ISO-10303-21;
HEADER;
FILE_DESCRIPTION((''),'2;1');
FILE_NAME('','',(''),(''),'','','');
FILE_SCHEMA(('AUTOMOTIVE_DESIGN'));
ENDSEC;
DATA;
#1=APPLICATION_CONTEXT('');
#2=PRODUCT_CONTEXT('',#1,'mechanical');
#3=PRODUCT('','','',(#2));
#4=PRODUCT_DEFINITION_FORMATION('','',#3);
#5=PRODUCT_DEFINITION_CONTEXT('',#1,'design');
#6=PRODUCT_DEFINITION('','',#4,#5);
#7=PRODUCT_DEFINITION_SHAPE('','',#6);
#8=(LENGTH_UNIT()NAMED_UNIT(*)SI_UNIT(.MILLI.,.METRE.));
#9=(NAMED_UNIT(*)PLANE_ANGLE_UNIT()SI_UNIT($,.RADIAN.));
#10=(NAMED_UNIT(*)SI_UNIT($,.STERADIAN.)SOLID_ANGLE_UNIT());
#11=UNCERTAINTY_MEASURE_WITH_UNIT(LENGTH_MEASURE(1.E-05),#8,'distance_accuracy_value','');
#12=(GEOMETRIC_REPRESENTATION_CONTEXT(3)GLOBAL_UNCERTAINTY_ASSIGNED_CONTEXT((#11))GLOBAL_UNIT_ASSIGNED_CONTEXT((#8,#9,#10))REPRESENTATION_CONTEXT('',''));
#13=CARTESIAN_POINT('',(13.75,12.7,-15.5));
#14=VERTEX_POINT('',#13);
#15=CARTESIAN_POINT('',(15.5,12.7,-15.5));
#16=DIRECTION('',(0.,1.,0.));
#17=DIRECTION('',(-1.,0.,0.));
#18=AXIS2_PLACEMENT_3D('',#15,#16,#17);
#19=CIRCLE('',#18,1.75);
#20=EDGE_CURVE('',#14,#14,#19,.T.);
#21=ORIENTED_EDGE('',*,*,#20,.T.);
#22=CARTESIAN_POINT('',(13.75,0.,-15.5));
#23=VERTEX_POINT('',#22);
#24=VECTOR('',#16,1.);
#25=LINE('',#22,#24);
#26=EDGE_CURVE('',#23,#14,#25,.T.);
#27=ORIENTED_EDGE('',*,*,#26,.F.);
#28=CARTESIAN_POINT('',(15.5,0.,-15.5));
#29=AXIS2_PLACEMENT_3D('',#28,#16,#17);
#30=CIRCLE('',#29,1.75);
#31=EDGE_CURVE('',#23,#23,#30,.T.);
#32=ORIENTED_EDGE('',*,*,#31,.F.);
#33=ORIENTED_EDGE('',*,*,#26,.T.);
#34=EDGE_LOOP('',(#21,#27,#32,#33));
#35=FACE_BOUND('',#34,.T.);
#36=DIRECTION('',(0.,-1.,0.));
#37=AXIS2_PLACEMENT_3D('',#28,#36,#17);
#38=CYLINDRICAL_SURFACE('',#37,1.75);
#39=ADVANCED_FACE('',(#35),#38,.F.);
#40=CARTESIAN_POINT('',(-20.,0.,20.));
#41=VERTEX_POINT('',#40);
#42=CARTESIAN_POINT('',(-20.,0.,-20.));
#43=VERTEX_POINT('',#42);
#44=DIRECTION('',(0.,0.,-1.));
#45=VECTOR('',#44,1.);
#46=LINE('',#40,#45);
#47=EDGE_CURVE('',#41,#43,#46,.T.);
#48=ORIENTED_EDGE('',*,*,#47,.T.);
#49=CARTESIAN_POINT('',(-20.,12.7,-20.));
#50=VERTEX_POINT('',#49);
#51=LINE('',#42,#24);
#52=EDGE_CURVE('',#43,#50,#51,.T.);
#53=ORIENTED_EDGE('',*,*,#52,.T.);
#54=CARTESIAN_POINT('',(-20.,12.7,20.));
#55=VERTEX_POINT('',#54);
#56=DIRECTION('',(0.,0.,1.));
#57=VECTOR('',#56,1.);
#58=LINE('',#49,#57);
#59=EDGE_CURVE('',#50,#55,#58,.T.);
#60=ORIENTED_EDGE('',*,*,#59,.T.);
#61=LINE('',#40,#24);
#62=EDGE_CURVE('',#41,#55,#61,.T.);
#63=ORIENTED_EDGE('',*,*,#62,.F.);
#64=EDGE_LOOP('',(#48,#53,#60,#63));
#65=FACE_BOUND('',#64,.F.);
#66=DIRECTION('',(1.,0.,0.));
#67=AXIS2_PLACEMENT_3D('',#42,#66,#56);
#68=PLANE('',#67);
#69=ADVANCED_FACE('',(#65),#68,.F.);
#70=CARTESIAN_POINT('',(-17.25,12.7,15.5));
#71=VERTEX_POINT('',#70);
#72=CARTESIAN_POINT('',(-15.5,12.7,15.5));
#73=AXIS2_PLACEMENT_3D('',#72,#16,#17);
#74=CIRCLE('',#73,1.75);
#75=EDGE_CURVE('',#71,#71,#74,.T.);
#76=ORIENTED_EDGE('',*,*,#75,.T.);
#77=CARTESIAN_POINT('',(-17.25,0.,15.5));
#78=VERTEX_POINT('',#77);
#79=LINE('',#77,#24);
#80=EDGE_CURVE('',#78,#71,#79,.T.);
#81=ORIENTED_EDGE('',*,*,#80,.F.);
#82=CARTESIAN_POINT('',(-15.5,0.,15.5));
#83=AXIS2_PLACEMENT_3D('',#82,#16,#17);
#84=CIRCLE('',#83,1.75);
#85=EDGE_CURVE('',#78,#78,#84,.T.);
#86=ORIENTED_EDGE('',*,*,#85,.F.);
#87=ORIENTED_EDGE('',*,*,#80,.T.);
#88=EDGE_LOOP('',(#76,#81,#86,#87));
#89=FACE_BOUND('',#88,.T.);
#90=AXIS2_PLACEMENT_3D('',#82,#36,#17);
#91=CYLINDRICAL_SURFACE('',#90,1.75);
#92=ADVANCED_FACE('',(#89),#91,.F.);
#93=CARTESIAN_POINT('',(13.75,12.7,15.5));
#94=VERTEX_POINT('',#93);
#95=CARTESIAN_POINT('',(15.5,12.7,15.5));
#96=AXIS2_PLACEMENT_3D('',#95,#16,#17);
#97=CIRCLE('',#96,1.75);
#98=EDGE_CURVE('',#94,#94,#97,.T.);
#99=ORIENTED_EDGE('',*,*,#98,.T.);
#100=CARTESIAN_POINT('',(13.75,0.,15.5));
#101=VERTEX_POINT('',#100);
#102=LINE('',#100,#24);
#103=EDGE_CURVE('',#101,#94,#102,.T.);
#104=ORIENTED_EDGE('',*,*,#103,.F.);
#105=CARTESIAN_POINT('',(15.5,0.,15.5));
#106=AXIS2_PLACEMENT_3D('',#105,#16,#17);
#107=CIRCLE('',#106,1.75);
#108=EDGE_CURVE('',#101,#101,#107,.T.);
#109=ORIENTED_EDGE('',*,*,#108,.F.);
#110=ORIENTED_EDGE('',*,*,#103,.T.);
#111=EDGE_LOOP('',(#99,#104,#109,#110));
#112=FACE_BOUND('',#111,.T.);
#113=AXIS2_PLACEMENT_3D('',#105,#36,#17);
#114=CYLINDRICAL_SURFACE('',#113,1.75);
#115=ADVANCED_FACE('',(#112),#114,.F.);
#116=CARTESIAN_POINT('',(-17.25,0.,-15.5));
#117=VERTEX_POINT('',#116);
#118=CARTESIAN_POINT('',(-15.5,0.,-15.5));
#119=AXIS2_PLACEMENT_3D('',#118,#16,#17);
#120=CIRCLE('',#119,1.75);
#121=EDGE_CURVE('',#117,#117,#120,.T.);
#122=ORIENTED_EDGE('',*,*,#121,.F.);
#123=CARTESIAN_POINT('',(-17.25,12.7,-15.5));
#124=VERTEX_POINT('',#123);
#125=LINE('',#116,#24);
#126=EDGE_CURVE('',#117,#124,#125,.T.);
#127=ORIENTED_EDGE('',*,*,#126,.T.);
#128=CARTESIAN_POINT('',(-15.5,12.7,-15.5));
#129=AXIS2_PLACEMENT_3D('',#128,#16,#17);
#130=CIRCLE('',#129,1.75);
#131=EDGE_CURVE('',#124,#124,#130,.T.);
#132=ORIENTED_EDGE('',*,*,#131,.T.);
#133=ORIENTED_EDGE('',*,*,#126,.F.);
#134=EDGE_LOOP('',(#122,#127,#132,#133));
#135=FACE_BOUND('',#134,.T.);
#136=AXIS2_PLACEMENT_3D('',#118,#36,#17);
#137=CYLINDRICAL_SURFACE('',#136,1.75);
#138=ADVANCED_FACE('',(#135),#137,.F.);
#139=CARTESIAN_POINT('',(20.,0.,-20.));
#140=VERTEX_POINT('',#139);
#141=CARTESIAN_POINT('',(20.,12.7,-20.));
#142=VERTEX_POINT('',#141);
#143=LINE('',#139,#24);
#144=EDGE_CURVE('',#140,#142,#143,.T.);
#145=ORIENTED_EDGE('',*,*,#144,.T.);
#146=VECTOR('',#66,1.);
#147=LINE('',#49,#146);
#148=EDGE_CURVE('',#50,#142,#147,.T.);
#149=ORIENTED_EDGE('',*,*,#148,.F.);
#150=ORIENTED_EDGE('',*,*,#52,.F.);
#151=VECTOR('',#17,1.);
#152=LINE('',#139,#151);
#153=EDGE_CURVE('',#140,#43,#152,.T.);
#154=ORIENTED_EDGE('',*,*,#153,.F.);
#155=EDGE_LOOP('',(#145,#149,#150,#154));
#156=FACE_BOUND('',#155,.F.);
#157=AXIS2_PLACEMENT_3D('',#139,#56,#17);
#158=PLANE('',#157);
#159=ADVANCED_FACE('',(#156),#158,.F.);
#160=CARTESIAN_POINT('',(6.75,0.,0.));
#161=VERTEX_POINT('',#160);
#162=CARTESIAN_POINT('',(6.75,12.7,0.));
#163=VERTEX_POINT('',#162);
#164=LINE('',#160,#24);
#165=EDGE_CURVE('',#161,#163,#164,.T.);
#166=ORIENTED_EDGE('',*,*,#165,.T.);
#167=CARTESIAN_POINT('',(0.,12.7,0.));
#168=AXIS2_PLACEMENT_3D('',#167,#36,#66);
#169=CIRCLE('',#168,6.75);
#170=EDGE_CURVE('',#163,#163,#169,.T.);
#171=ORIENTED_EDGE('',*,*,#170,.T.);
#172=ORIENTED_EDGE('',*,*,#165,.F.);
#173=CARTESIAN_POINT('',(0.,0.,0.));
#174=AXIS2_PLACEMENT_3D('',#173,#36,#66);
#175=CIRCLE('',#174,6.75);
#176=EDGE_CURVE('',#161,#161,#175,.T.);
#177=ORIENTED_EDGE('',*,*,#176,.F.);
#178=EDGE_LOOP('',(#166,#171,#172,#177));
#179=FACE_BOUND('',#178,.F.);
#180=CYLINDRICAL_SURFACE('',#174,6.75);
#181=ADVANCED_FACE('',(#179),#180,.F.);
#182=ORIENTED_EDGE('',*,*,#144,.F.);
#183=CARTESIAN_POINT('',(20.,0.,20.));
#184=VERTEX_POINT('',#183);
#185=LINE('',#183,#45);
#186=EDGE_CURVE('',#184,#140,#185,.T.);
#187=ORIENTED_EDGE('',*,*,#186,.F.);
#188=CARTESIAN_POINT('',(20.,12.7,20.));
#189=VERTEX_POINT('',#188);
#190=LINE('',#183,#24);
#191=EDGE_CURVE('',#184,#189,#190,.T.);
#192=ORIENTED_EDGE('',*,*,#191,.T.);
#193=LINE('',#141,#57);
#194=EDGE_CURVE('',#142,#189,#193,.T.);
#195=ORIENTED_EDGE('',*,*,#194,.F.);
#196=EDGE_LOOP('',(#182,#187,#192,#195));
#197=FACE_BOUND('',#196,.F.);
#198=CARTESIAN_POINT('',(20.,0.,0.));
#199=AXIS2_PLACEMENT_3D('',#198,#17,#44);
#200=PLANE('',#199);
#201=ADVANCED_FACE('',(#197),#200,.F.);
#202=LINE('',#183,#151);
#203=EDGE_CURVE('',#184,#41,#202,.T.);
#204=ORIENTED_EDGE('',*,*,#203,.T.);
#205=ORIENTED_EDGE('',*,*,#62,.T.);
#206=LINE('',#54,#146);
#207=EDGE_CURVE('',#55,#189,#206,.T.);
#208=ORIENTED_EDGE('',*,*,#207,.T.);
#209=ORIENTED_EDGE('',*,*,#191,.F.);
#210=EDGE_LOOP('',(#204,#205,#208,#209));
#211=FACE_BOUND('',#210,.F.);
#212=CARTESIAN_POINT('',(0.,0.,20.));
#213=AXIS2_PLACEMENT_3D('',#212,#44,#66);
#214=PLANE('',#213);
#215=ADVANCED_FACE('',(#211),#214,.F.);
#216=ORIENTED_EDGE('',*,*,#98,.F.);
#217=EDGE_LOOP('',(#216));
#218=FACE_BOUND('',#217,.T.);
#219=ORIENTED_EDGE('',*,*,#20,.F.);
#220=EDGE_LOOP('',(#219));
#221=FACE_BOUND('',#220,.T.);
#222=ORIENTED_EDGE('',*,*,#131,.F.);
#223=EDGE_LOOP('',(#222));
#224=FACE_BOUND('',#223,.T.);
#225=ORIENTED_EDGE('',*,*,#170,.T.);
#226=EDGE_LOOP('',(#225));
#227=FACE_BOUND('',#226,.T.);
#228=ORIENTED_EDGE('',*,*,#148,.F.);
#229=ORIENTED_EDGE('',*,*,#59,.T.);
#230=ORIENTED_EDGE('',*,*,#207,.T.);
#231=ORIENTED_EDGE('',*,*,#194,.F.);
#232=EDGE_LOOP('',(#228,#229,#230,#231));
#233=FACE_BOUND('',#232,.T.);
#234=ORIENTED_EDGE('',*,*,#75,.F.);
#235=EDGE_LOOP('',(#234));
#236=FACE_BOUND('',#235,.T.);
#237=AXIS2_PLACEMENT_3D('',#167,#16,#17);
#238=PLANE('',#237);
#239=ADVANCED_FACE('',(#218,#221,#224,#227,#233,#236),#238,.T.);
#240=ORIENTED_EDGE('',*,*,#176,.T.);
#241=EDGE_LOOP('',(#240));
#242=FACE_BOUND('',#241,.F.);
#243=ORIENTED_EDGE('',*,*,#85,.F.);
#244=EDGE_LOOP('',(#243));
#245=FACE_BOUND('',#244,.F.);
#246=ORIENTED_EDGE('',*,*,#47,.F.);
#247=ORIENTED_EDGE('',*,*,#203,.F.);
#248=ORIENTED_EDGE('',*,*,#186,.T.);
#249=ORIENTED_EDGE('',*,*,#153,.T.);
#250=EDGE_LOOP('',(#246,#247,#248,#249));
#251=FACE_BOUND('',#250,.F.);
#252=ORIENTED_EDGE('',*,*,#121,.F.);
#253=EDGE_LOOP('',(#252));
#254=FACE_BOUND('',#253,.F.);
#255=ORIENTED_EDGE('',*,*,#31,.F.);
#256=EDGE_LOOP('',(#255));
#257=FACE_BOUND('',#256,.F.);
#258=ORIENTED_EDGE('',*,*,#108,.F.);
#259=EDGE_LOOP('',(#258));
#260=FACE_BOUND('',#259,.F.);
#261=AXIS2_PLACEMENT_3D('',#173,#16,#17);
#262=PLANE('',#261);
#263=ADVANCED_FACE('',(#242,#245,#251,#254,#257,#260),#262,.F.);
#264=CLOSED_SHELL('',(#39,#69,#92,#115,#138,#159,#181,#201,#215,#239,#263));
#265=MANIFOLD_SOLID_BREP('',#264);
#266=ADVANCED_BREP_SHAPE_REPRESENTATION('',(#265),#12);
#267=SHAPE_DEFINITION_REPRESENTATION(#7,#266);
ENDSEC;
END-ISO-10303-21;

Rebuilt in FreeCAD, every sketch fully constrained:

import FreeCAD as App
import Part
import Sketcher
from FreeCAD import Vector


def add_polygon(sketch, points):
    """Adds a closed chain of lines whose ends are joined by coincident constraints."""
    first, n = sketch.GeometryCount, len(points)
    for a, b in zip(points, points[1:] + points[:1]):
        sketch.addGeometry(Part.LineSegment(App.Vector(*a, 0), App.Vector(*b, 0)), False)
    for i in range(n):
        sketch.addConstraint(Sketcher.Constraint("Coincident", first + i, 2, first + (i + 1) % n, 1))

doc = App.newDocument("Part")
params = doc.addObject("Spreadsheet::Sheet", "Params")
for row, (alias, value) in enumerate([
    ("sketch1_diameter", "3.5 mm"),
    ("sketch1_width", "40 mm"),
    ("pad1_length", "12.7 mm"),
    ("sketch2_diameter", "13.5 mm"),
], start=1):
    params.set(f"A{row}", alias)
    params.set(f"B{row}", "=" + value)
    params.setAlias(f"B{row}", alias)

body = doc.addObject("PartDesign::Body", "Body")

# Sketch on XZ plane
sketch1 = body.newObject("Sketcher::SketchObject", "Sketch")
sketch1.AttachmentSupport = (doc.getObject("XZ_Plane"), [""])
sketch1.MapMode = "FlatFace"
add_polygon(sketch1, [(20, -20), (-20, -20), (-20, 20), (20, 20)])  # lines 0-3
sketch1.addGeometry(Part.Circle(Vector(15.5, -15.5, 0), Vector(0, 0, 1), 1.8), False)  # 4
sketch1.addGeometry(Part.Circle(Vector(15.5, 15.5, 0), Vector(0, 0, 1), 1.8), False)  # 5
sketch1.addGeometry(Part.Circle(Vector(-15.5, -15.5, 0), Vector(0, 0, 1), 1.8), False)  # 6
sketch1.addGeometry(Part.Circle(Vector(-15.5, 15.5, 0), Vector(0, 0, 1), 1.8), False)  # 7
sketch1.addConstraint(Sketcher.Constraint("Horizontal", 0))
sketch1.addConstraint(Sketcher.Constraint("Vertical", 1))
sketch1.addConstraint(Sketcher.Constraint("Horizontal", 2))
sketch1.addConstraint(Sketcher.Constraint("Vertical", 3))
sketch1.addConstraint(Sketcher.Constraint("Equal", 4, 5))
sketch1.addConstraint(Sketcher.Constraint("Equal", 5, 6))
sketch1.addConstraint(Sketcher.Constraint("Equal", 6, 7))
sketch1.addConstraint(Sketcher.Constraint("Symmetric", 5, 3, 6, 3, -1, 1))
sketch1.addConstraint(Sketcher.Constraint("Symmetric", 4, 3, 7, 3, -1, 1))
sketch1.addConstraint(Sketcher.Constraint("Symmetric", 0, 2, 2, 2, -1, 1))
sketch1.addConstraint(Sketcher.Constraint("Symmetric", 4, 3, 6, 3, -2))
sketch1.addConstraint(Sketcher.Constraint("Equal", 2, 1))
sketch1.addConstraint(Sketcher.Constraint("Diameter", 4, 3.5))
sketch1.addConstraint(Sketcher.Constraint("DistanceX", 0, 2, 0, 1, 40.0))
sketch1.addConstraint(Sketcher.Constraint("DistanceY", 4, 3, 5, 3, 31.0))
sketch1.addConstraint(Sketcher.Constraint("DistanceX", 6, 3, 4, 3, 31.0))
sketch1.setExpression("Constraints[16]", "Params.sketch1_diameter")
sketch1.setExpression("Constraints[17]", "Params.sketch1_width")
pad1 = body.newObject("PartDesign::Pad", "Pad")
pad1.Profile = sketch1
pad1.setExpression("Length", "Params.pad1_length")
pad1.Reversed = True

# Sketch on XZ plane
sketch2 = body.newObject("Sketcher::SketchObject", "Sketch001")
sketch2.AttachmentSupport = (doc.getObject("XZ_Plane"), [""])
sketch2.MapMode = "FlatFace"
sketch2.addGeometry(Part.Circle(Vector(0, 0, 0), Vector(0, 0, 1), 7), False)
sketch2.addConstraint(Sketcher.Constraint("Coincident", 0, 3, -1, 1))
sketch2.addConstraint(Sketcher.Constraint("Diameter", 0, 13.5))
sketch2.setExpression("Constraints[1]", "Params.sketch2_diameter")
pocket1 = body.newObject("PartDesign::Pocket", "Pocket")
pocket1.Profile = sketch2
pocket1.Type = "ThroughAll"

doc.recompute()
